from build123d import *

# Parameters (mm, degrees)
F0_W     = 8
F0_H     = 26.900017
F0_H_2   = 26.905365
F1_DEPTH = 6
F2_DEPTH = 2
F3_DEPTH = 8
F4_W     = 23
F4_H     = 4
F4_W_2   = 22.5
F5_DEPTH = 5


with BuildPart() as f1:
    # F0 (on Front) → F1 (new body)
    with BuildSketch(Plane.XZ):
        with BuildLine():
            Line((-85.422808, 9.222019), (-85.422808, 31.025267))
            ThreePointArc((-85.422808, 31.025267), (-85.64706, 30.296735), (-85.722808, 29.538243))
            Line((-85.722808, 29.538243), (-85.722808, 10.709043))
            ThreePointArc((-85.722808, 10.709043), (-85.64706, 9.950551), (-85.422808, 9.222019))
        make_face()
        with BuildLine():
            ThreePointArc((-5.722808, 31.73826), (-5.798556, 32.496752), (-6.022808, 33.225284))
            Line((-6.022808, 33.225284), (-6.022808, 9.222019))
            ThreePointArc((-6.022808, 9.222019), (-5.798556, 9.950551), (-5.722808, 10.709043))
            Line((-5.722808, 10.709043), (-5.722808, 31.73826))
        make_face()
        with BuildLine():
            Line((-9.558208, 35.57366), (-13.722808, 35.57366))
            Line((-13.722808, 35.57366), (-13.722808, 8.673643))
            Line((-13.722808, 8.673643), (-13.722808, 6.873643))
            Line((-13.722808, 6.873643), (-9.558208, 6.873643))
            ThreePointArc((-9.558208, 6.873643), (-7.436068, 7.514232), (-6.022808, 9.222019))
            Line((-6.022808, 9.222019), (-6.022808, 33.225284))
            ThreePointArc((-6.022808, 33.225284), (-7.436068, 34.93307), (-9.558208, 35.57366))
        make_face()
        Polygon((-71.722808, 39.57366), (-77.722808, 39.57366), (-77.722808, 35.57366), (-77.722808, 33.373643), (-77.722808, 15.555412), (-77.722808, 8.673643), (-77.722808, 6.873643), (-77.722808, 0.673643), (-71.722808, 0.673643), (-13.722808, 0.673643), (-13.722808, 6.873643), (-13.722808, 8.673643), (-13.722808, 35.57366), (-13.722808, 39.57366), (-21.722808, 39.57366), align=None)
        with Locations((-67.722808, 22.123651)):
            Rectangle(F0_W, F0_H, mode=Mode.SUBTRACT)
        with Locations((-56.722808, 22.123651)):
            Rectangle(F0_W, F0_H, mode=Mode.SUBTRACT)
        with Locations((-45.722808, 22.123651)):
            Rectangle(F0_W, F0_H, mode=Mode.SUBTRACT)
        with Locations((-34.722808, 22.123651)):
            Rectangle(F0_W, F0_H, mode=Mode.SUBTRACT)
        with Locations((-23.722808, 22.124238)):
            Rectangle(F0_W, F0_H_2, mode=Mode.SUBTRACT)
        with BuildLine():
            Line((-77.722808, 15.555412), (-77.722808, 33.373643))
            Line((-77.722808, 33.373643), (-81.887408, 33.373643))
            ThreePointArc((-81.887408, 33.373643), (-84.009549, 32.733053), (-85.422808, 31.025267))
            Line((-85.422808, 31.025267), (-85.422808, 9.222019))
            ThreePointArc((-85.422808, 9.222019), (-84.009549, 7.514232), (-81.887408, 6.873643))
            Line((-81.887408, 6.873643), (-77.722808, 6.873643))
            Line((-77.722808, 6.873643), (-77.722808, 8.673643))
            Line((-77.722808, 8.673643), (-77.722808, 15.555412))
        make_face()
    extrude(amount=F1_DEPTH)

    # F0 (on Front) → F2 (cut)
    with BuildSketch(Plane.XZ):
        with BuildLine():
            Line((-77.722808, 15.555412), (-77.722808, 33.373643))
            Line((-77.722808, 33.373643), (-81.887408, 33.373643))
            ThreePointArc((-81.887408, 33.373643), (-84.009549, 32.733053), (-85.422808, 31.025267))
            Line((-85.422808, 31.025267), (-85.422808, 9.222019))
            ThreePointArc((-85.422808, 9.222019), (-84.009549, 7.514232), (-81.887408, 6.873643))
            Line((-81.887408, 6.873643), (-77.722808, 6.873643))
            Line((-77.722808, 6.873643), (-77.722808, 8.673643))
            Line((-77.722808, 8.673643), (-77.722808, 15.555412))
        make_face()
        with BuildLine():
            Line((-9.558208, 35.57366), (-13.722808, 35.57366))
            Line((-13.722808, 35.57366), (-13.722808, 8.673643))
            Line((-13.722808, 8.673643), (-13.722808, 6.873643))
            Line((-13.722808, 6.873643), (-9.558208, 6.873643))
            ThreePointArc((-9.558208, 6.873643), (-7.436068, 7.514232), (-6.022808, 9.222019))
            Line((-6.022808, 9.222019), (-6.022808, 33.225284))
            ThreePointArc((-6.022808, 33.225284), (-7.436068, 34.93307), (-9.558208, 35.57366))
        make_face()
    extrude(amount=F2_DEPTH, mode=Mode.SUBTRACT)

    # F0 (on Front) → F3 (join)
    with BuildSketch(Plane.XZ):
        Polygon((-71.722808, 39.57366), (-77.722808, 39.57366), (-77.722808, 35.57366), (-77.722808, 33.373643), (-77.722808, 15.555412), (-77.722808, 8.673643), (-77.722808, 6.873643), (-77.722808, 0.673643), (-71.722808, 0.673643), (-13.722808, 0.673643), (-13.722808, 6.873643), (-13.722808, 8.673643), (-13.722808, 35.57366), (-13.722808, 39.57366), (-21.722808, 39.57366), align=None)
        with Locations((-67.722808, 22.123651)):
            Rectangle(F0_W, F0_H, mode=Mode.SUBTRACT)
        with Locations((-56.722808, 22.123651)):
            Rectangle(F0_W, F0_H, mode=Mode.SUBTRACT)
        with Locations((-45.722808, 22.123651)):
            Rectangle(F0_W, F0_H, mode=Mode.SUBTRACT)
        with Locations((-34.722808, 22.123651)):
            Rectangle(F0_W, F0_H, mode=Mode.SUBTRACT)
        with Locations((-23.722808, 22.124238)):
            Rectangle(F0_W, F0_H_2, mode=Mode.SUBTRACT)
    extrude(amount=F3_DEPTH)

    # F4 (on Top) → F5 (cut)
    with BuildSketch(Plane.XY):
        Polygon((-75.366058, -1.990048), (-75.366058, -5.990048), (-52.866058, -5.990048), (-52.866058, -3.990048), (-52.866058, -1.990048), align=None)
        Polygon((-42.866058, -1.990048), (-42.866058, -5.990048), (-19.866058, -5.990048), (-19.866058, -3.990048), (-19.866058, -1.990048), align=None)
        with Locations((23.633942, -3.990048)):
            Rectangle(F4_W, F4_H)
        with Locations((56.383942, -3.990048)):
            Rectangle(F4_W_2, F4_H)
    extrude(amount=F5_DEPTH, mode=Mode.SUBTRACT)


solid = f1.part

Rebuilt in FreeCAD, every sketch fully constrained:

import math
import FreeCAD as App
import Part
import Sketcher

V = App.Vector
Q = App.Units.Quantity


def add_polygon(sketch, points):
    """Adds a closed chain of lines whose ends are joined by coincident constraints."""
    first, n = sketch.GeometryCount, len(points)
    for a, b in zip(points, points[1:] + points[:1]):
        sketch.addGeometry(Part.LineSegment(App.Vector(*a, 0), App.Vector(*b, 0)), False)
    for i in range(n):
        sketch.addConstraint(Sketcher.Constraint("Coincident", first + i, 2, first + (i + 1) % n, 1))

doc = App.newDocument("Part")
params = doc.addObject("Spreadsheet::Sheet", "Params")
for row, (alias, value) in enumerate([
    ("sketch1_width", "64 mm"),
    ("sketch1_width2", "8 mm"),
    ("sketch1_height", "4 mm"),
    ("sketch1_height2", "6.2 mm"),
    ("pad1_length", "6 mm"),
    ("sketch2_height", "26.5 mm"),
    ("pocket1_length", "2 mm"),
    ("sketch3_width", "64 mm"),
    ("sketch3_width2", "8 mm"),
    ("pad2_length", "8 mm"),
    ("sketch4_width", "23 mm"),
    ("sketch4_height", "4 mm"),
    ("sketch4_width2", "22.5 mm"),
    ("pocket2_length", "5 mm"),
], start=1):
    params.set(f"A{row}", alias)
    params.set(f"B{row}", "=" + value)
    params.setAlias(f"B{row}", alias)

body = doc.addObject("PartDesign::Body", "Body")

# Sketch on XZ plane
sketch1 = body.newObject("Sketcher::SketchObject", "Sketch")
sketch1.AttachmentSupport = (doc.getObject("XZ_Plane"), [""])
sketch1.MapMode = "FlatFace"
sketch1.addGeometry(Part.ArcOfCircle(Part.Circle(V(-81.887408, 29.538243, 0), V(0, 0, 1), 3.8354), math.radians(157.187903), math.radians(180)), False)  # 0
sketch1.addGeometry(Part.LineSegment(V(-85.722808, 29.538243, 0), V(-85.722808, 10.709043, 0)), False)  # 1
sketch1.addGeometry(Part.ArcOfCircle(Part.Circle(V(-81.887408, 10.709043, 0), V(0, 0, 1), 3.8354), math.radians(180), math.radians(202.812097)), False)  # 2
sketch1.addGeometry(Part.ArcOfCircle(Part.Circle(V(-81.887411, 10.709039, 0), V(0, 0, 1), 3.835396), math.radians(-157.18794), math.radians(-89.999958)), False)  # 3
sketch1.addGeometry(Part.LineSegment(V(-81.887408, 6.873643, 0), V(-77.722808, 6.873643, 0)), False)  # 4
sketch1.addGeometry(Part.LineSegment(V(-77.722808, 6.873643, 0), V(-77.722808, 0.673643, 0)), False)  # 5
sketch1.addGeometry(Part.LineSegment(V(-77.722808, 0.673643, 0), V(-13.722808, 0.673643, 0)), False)  # 6
sketch1.addGeometry(Part.LineSegment(V(-13.722808, 0.673643, 0), V(-13.722808, 6.873643, 0)), False)  # 7
sketch1.addGeometry(Part.LineSegment(V(-13.722808, 6.873643, 0), V(-9.558208, 6.873643, 0)), False)  # 8
sketch1.addGeometry(Part.ArcOfCircle(Part.Circle(V(-9.558207, 10.709042, 0), V(0, 0, 1), 3.835399), math.radians(-90.000014), math.radians(-22.812087)), False)  # 9
sketch1.addGeometry(Part.ArcOfCircle(Part.Circle(V(-9.558208, 10.709043, 0), V(0, 0, 1), 3.8354), math.radians(-22.812097), math.radians(0)), False)  # 10
sketch1.addGeometry(Part.LineSegment(V(-5.722808, 10.709043, 0), V(-5.722808, 31.73826, 0)), False)  # 11
sketch1.addGeometry(Part.ArcOfCircle(Part.Circle(V(-9.558208, 31.73826, 0), V(0, 0, 1), 3.8354), math.radians(0), math.radians(22.812097)), False)  # 12
sketch1.addGeometry(Part.ArcOfCircle(Part.Circle(V(-9.55821, 31.738257, 0), V(0, 0, 1), 3.835403), math.radians(22.812129), math.radians(89.999973)), False)  # 13
sketch1.addGeometry(Part.LineSegment(V(-9.558208, 35.57366, 0), V(-13.722808, 35.57366, 0)), False)  # 14
sketch1.addGeometry(Part.LineSegment(V(-13.722808, 35.57366, 0), V(-13.722808, 39.57366, 0)), False)  # 15
sketch1.addGeometry(Part.LineSegment(V(-13.722808, 39.57366, 0), V(-77.722808, 39.57366, 0)), False)  # 16
sketch1.addGeometry(Part.LineSegment(V(-77.722808, 39.57366, 0), V(-77.722808, 33.373643, 0)), False)  # 17
sketch1.addGeometry(Part.LineSegment(V(-77.722808, 33.373643, 0), V(-81.887408, 33.373643, 0)), False)  # 18
sketch1.addGeometry(Part.ArcOfCircle(Part.Circle(V(-81.887408, 29.538243, 0), V(0, 0, 1), 3.8354), math.radians(89.999999), math.radians(157.187899)), False)  # 19
add_polygon(sketch1, [(-27.722808, 8.671556), (-27.722808, 35.57692), (-19.722808, 35.57692), (-19.722808, 8.671556)])  # lines 20-23
add_polygon(sketch1, [(-63.722808, 8.673642), (-71.722808, 8.673642), (-71.722808, 35.573659), (-63.722808, 35.573659)])  # lines 24-27
add_polygon(sketch1, [(-52.722808, 8.673642), (-60.722808, 8.673642), (-60.722808, 35.573659), (-52.722808, 35.573659)])  # lines 28-31
add_polygon(sketch1, [(-41.722808, 8.673642), (-49.722808, 8.673642), (-49.722808, 35.573659), (-41.722808, 35.573659)])  # lines 32-35
add_polygon(sketch1, [(-30.722808, 8.673642), (-38.722808, 8.673642), (-38.722808, 35.573659), (-30.722808, 35.573659)])  # lines 36-39
sketch1.addConstraint([
    Sketcher.Constraint("Tangent", 0, 2, 1, 1),
    Sketcher.Constraint("Tangent", 1, 2, 2, 1),
    Sketcher.Constraint("Tangent", 2, 2, 3, 1),
    Sketcher.Constraint("Tangent", 3, 2, 4, 1),
    Sketcher.Constraint("Coincident", 4, 2, 5, 1),
    Sketcher.Constraint("Coincident", 5, 2, 6, 1),
    Sketcher.Constraint("Coincident", 6, 2, 7, 1),
    Sketcher.Constraint("Coincident", 7, 2, 8, 1),
    Sketcher.Constraint("Tangent", 8, 2, 9, 1),
    Sketcher.Constraint("Tangent", 9, 2, 10, 1),
    Sketcher.Constraint("Tangent", 10, 2, 11, 1),
    Sketcher.Constraint("Tangent", 11, 2, 12, 1),
    Sketcher.Constraint("Tangent", 12, 2, 13, 1),
    Sketcher.Constraint("Tangent", 13, 2, 14, 1),
    Sketcher.Constraint("Coincident", 14, 2, 15, 1),
    Sketcher.Constraint("Coincident", 15, 2, 16, 1),
    Sketcher.Constraint("Coincident", 16, 2, 17, 1),
    Sketcher.Constraint("Coincident", 17, 2, 18, 1),
    Sketcher.Constraint("Tangent", 18, 2, 19, 1),
    Sketcher.Constraint("Tangent", 19, 2, 0, 1),
    Sketcher.Constraint("Vertical", 1),
    Sketcher.Constraint("Horizontal", 4),
    Sketcher.Constraint("Vertical", 5),
    Sketcher.Constraint("Horizontal", 6),
    Sketcher.Constraint("Vertical", 7),
    Sketcher.Constraint("Horizontal", 8),
    Sketcher.Constraint("Vertical", 11),
    Sketcher.Constraint("Horizontal", 14),
    Sketcher.Constraint("Vertical", 15),
    Sketcher.Constraint("Horizontal", 16),
    Sketcher.Constraint("Vertical", 17),
    Sketcher.Constraint("Horizontal", 18),
    Sketcher.Constraint("Vertical", 20),
    Sketcher.Constraint("Horizontal", 21),
    Sketcher.Constraint("Vertical", 22),
    Sketcher.Constraint("Horizontal", 23),
    Sketcher.Constraint("Horizontal", 24),
    Sketcher.Constraint("Vertical", 25),
    Sketcher.Constraint("Horizontal", 26),
    Sketcher.Constraint("Vertical", 27),
    Sketcher.Constraint("Horizontal", 28),
    Sketcher.Constraint("Vertical", 29),
    Sketcher.Constraint("Horizontal", 30),
    Sketcher.Constraint("Vertical", 31),
    Sketcher.Constraint("Horizontal", 32),
    Sketcher.Constraint("Vertical", 33),
    Sketcher.Constraint("Horizontal", 34),
    Sketcher.Constraint("Vertical", 35),
    Sketcher.Constraint("Horizontal", 36),
    Sketcher.Constraint("Vertical", 37),
    Sketcher.Constraint("Horizontal", 38),
    Sketcher.Constraint("Vertical", 39),
    Sketcher.Constraint("Equal", 0, 2),
    Sketcher.Constraint("Equal", 2, 9),
    Sketcher.Constraint("Equal", 9, 10),
    Sketcher.Constraint("Equal", 10, 12),
    Sketcher.Constraint("Equal", 12, 19),
    Sketcher.Constraint("Horizontal", 2, 3, 9, 3),
    Sketcher.Constraint("Horizontal", 4, 2, 7, 2),
    Sketcher.Constraint("Horizontal", 2, 2, 9, 2),
    Sketcher.Constraint("Horizontal", 14, 2, 25, 2),
    Sketcher.Constraint("Horizontal", 27, 2, 28, 2),
    Sketcher.Constraint("Horizontal", 26, 2, 29, 2),
    Sketcher.Constraint("Horizontal", 31, 2, 32, 2),
    Sketcher.Constraint("Horizontal", 30, 2, 33, 2),
    Sketcher.Constraint("Horizontal", 35, 2, 36, 2),
    Sketcher.Constraint("Horizontal", 34, 2, 37, 2),
    Sketcher.Constraint("Vertical", 10, 3, 13, 3),
    Sketcher.Constraint("Vertical", 9, 2, 12, 2),
    Sketcher.Constraint("Vertical", 7, 2, 14, 2),
    Sketcher.Constraint("Vertical", 5, 2, 16, 2),
    Sketcher.Constraint("Vertical", 2, 2, 19, 2),
    Sketcher.Constraint("Equal", 4, 8),
    Sketcher.Constraint("Equal", 23, 24),
    Sketcher.Constraint("Equal", 26, 28),
    Sketcher.Constraint("Equal", 30, 32),
    Sketcher.Constraint("Equal", 34, 36),
    Sketcher.Constraint("DistanceX", 6, 1, 6, 2, Q("64 mm")),
    Sketcher.Constraint("DistanceX", 21, 1, 21, 2, Q("8 mm")),
    Sketcher.Constraint("DistanceY", 15, 1, 15, 2, Q("4 mm")),
    Sketcher.Constraint("DistanceY", 5, 2, 5, 1, Q("6.2 mm")),
    Sketcher.Constraint("DistanceX", 1, 2, 4, 2, Q("8 mm")),
    Sketcher.Constraint("DistanceX", 20, 2, 14, 2, Q("14 mm")),
    Sketcher.Constraint("DistanceX", 4, 2, 24, 2, Q("6 mm")),
    Sketcher.Constraint("DistanceY", 5, 2, 24, 2, Q("7.999999 mm")),
    Sketcher.Constraint("DistanceX", 27, 2, 28, 2, Q("3 mm")),
    Sketcher.Constraint("DistanceX", 31, 2, 32, 2, Q("3 mm")),
    Sketcher.Constraint("DistanceX", 35, 2, 36, 2, Q("3 mm")),
    Sketcher.Constraint("Radius", 0, Q("3.8354 mm")),
    Sketcher.Constraint("DistanceX", 1, 2, 2, 2, Q("0.3 mm")),
    Sketcher.Constraint("DistanceY", 1, 2, 1, 1, Q("18.8292 mm")),
    Sketcher.Constraint("DistanceY", 11, 1, 11, 2, Q("21.029217 mm")),
    Sketcher.Constraint("DistanceY", 20, 1, 20, 2, Q("26.905365 mm")),
    Sketcher.Constraint("DistanceX", 3, 3, -1, 1, Q("81.887411 mm")),
    Sketcher.Constraint("DistanceY", -1, 1, 3, 3, Q("10.709039 mm")),
    Sketcher.Constraint("DistanceY", -1, 1, 20, 2, Q("35.57692 mm")),
])
sketch1.setExpression("Constraints[97]", "Params.sketch1_width")
sketch1.setExpression("Constraints[98]", "Params.sketch1_width2")
sketch1.setExpression("Constraints[99]", "Params.sketch1_height")
sketch1.setExpression("Constraints[100]", "Params.sketch1_height2")
pad1 = body.newObject("PartDesign::Pad", "Pad")
pad1.Profile = sketch1
pad1.setExpression("Length", "Params.pad1_length")

# Sketch on XZ plane
sketch2 = body.newObject("Sketcher::SketchObject", "Sketch001")
sketch2.AttachmentSupport = (doc.getObject("XZ_Plane"), [""])
sketch2.MapMode = "FlatFace"
sketch2.addGeometry([
    Part.LineSegment(V(-77.722808, 33.373643, 0), V(-81.887408, 33.373643, 0)),  # 0
    Part.ArcOfCircle(Part.Circle(V(-81.887408, 29.538243, 0), V(0, 0, 1), 3.8354), math.radians(89.999999), math.radians(157.187899)),  # 1
    Part.LineSegment(V(-85.422808, 31.025267, 0), V(-85.422808, 9.222019, 0)),  # 2
    Part.ArcOfCircle(Part.Circle(V(-81.887411, 10.709039, 0), V(0, 0, 1), 3.835396), math.radians(-157.18794), math.radians(-89.999958)),  # 3
    Part.LineSegment(V(-81.887408, 6.873643, 0), V(-77.722808, 6.873643, 0)),  # 4
    Part.LineSegment(V(-77.722808, 6.873643, 0), V(-77.722808, 33.373643, 0)),  # 5
    Part.LineSegment(V(-9.558208, 35.57366, 0), V(-13.722808, 35.57366, 0)),  # 6
    Part.LineSegment(V(-13.722808, 35.57366, 0), V(-13.722808, 6.873643, 0)),  # 7
    Part.LineSegment(V(-13.722808, 6.873643, 0), V(-9.558208, 6.873643, 0)),  # 8
    Part.ArcOfCircle(Part.Circle(V(-9.558207, 10.709042, 0), V(0, 0, 1), 3.835399), math.radians(-90.000014), math.radians(-22.812087)),  # 9
    Part.LineSegment(V(-6.022808, 9.222019, 0), V(-6.022808, 33.225284, 0)),  # 10
    Part.ArcOfCircle(Part.Circle(V(-9.55821, 31.738257, 0), V(0, 0, 1), 3.835403), math.radians(22.812129), math.radians(89.999973)),  # 11
], False)
sketch2.addConstraint([
    Sketcher.Constraint("Tangent", 0, 2, 1, 1),
    Sketcher.Constraint("Coincident", 1, 2, 2, 1),
    Sketcher.Constraint("Coincident", 2, 2, 3, 1),
    Sketcher.Constraint("Tangent", 3, 2, 4, 1),
    Sketcher.Constraint("Coincident", 4, 2, 5, 1),
    Sketcher.Constraint("Coincident", 5, 2, 0, 1),
    Sketcher.Constraint("Coincident", 6, 2, 7, 1),
    Sketcher.Constraint("Coincident", 7, 2, 8, 1),
    Sketcher.Constraint("Tangent", 8, 2, 9, 1),
    Sketcher.Constraint("Coincident", 9, 2, 10, 1),
    Sketcher.Constraint("Coincident", 10, 2, 11, 1),
    Sketcher.Constraint("Tangent", 11, 2, 6, 1),
    Sketcher.Constraint("Horizontal", 0),
    Sketcher.Constraint("Vertical", 2),
    Sketcher.Constraint("Horizontal", 4),
    Sketcher.Constraint("Vertical", 5),
    Sketcher.Constraint("Horizontal", 6),
    Sketcher.Constraint("Vertical", 7),
    Sketcher.Constraint("Horizontal", 8),
    Sketcher.Constraint("Vertical", 10),
    Sketcher.Constraint("Equal", 1, 9),
    Sketcher.Constraint("Horizontal", 4, 2, 7, 2),
    Sketcher.Constraint("Horizontal", 2, 2, 9, 2),
    Sketcher.Constraint("Vertical", 0, 2, 3, 2),
    Sketcher.Constraint("Vertical", 11, 3, 8, 2),
    Sketcher.Constraint("Equal", 4, 6),
    Sketcher.Constraint("DistanceY", 5, 1, 5, 2, Q("26.5 mm")),
    Sketcher.Constraint("DistanceX", 5, 2, 6, 2, Q("64 mm")),
    Sketcher.Constraint("Radius", 1, Q("3.8354 mm")),
    Sketcher.Constraint("DistanceX", 2, 2, 4, 2, Q("7.7 mm")),
    Sketcher.Constraint("DistanceX", 7, 2, 9, 2, Q("7.7 mm")),
    Sketcher.Constraint("DistanceX", 0, 2, 0, 1, Q("4.1646 mm")),
    Sketcher.Constraint("Radius", 11, Q("3.835403 mm")),
    Sketcher.Constraint("DistanceY", 7, 2, 7, 1, Q("28.700017 mm")),
    Sketcher.Constraint("DistanceX", 1, 3, -1, 1, Q("81.887408 mm")),
    Sketcher.Constraint("DistanceY", -1, 1, 3, 3, Q("10.709039 mm")),
])
sketch2.setExpression("Constraints[26]", "Params.sketch2_height")
pocket1 = body.newObject("PartDesign::Pocket", "Pocket")
pocket1.Profile = sketch2
pocket1.setExpression("Length", "Params.pocket1_length")
pocket1.Reversed = True

# Sketch on XZ plane
sketch3 = body.newObject("Sketcher::SketchObject", "Sketch002")
sketch3.AttachmentSupport = (doc.getObject("XZ_Plane"), [""])
sketch3.MapMode = "FlatFace"
add_polygon(sketch3, [(-77.722808, 39.57366), (-77.722808, 0.673643), (-13.722808, 0.673643), (-13.722808, 39.57366)])  # lines 0-3
add_polygon(sketch3, [(-63.722808, 8.673642), (-71.722808, 8.673642), (-71.722808, 35.573659), (-63.722808, 35.573659)])  # lines 4-7
add_polygon(sketch3, [(-52.722808, 8.673642), (-60.722808, 8.673642), (-60.722808, 35.573659), (-52.722808, 35.573659)])  # lines 8-11
add_polygon(sketch3, [(-41.722808, 8.673642), (-49.722808, 8.673642), (-49.722808, 35.573659), (-41.722808, 35.573659)])  # lines 12-15
add_polygon(sketch3, [(-30.722808, 8.673642), (-38.722808, 8.673642), (-38.722808, 35.573659), (-30.722808, 35.573659)])  # lines 16-19
add_polygon(sketch3, [(-19.722808, 8.671556), (-27.722808, 8.671556), (-27.722808, 35.57692), (-19.722808, 35.57692)])  # lines 20-23
sketch3.addConstraint([
    Sketcher.Constraint("Vertical", 0),
    Sketcher.Constraint("Horizontal", 1),
    Sketcher.Constraint("Vertical", 2),
    Sketcher.Constraint("Horizontal", 3),
    Sketcher.Constraint("Horizontal", 4),
    Sketcher.Constraint("Vertical", 5),
    Sketcher.Constraint("Horizontal", 6),
    Sketcher.Constraint("Vertical", 7),
    Sketcher.Constraint("Horizontal", 8),
    Sketcher.Constraint("Vertical", 9),
    Sketcher.Constraint("Horizontal", 10),
    Sketcher.Constraint("Vertical", 11),
    Sketcher.Constraint("Horizontal", 12),
    Sketcher.Constraint("Vertical", 13),
    Sketcher.Constraint("Horizontal", 14),
    Sketcher.Constraint("Vertical", 15),
    Sketcher.Constraint("Horizontal", 16),
    Sketcher.Constraint("Vertical", 17),
    Sketcher.Constraint("Horizontal", 18),
    Sketcher.Constraint("Vertical", 19),
    Sketcher.Constraint("Horizontal", 20),
    Sketcher.Constraint("Vertical", 21),
    Sketcher.Constraint("Horizontal", 22),
    Sketcher.Constraint("Vertical", 23),
    Sketcher.Constraint("Horizontal", 7, 2, 8, 2),
    Sketcher.Constraint("Horizontal", 6, 2, 9, 2),
    Sketcher.Constraint("Horizontal", 11, 2, 12, 2),
    Sketcher.Constraint("Horizontal", 10, 2, 13, 2),
    Sketcher.Constraint("Horizontal", 15, 2, 16, 2),
    Sketcher.Constraint("Horizontal", 14, 2, 17, 2),
    Sketcher.Constraint("Equal", 6, 8),
    Sketcher.Constraint("Equal", 10, 12),
    Sketcher.Constraint("Equal", 14, 16),
    Sketcher.Constraint("Equal", 18, 20),
    Sketcher.Constraint("DistanceX", 1, 1, 1, 2, Q("64 mm")),
    Sketcher.Constraint("DistanceX", 4, 2, 4, 1, Q("8 mm")),
    Sketcher.Constraint("DistanceX", 0, 2, 4, 2, Q("6 mm")),
    Sketcher.Constraint("DistanceY", 0, 2, 4, 2, Q("7.999999 mm")),
    Sketcher.Constraint("DistanceY", 5, 2, 3, 2, Q("4 mm")),
    Sketcher.Constraint("DistanceX", 7, 2, 8, 2, Q("3 mm")),
    Sketcher.Constraint("DistanceX", 11, 2, 12, 2, Q("3 mm")),
    Sketcher.Constraint("DistanceX", 15, 2, 16, 2, Q("3 mm")),
    Sketcher.Constraint("DistanceX", 19, 2, 20, 2, Q("3 mm")),
    Sketcher.Constraint("DistanceY", 0, 2, 0, 1, Q("38.900017 mm")),
    Sketcher.Constraint("DistanceY", 21, 1, 21, 2, Q("26.905365 mm")),
    Sketcher.Constraint("DistanceX", 0, 2, -1, 1, Q("77.722808 mm")),
    Sketcher.Constraint("DistanceY", -1, 1, 2, 2, Q("39.57366 mm")),
    Sketcher.Constraint("DistanceY", -1, 1, 21, 2, Q("35.57692 mm")),
])
sketch3.setExpression("Constraints[58]", "Params.sketch3_width")
sketch3.setExpression("Constraints[59]", "Params.sketch3_width2")
pad2 = body.newObject("PartDesign::Pad", "Pad001")
pad2.Profile = sketch3
pad2.setExpression("Length", "Params.pad2_length")

# Sketch on XY plane
sketch4 = body.newObject("Sketcher::SketchObject", "Sketch003")
sketch4.AttachmentSupport = (doc.getObject("XY_Plane"), [""])
sketch4.MapMode = "FlatFace"
add_polygon(sketch4, [(-75.366058, -1.990048), (-75.366058, -5.990048), (-52.866058, -5.990048), (-52.866058, -1.990048)])  # lines 0-3
add_polygon(sketch4, [(-42.866058, -1.990048), (-42.866058, -5.990048), (-19.866058, -5.990048), (-19.866058, -1.990048)])  # lines 4-7
add_polygon(sketch4, [(12.133942, -1.990048), (12.133942, -5.990048), (35.133942, -5.990048), (35.133942, -1.990048)])  # lines 8-11
add_polygon(sketch4, [(45.133942, -1.990048), (45.133942, -5.990048), (67.633942, -5.990048), (67.633942, -1.990048)])  # lines 12-15
sketch4.addConstraint([
    Sketcher.Constraint("Vertical", 0),
    Sketcher.Constraint("Horizontal", 1),
    Sketcher.Constraint("Vertical", 2),
    Sketcher.Constraint("Horizontal", 3),
    Sketcher.Constraint("Vertical", 4),
    Sketcher.Constraint("Horizontal", 5),
    Sketcher.Constraint("Vertical", 6),
    Sketcher.Constraint("Horizontal", 7),
    Sketcher.Constraint("Vertical", 8),
    Sketcher.Constraint("Horizontal", 9),
    Sketcher.Constraint("Vertical", 10),
    Sketcher.Constraint("Horizontal", 11),
    Sketcher.Constraint("Vertical", 12),
    Sketcher.Constraint("Horizontal", 13),
    Sketcher.Constraint("Vertical", 14),
    Sketcher.Constraint("Horizontal", 15),
    Sketcher.Constraint("Horizontal", 1, 2, 4, 2),
    Sketcher.Constraint("Horizontal", 3, 2, 6, 2),
    Sketcher.Constraint("Horizontal", 5, 2, 8, 2),
    Sketcher.Constraint("Horizontal", 7, 2, 10, 2),
    Sketcher.Constraint("Horizontal", 9, 2, 12, 2),
    Sketcher.Constraint("Horizontal", 11, 2, 14, 2),
    Sketcher.Constraint("Equal", 7, 9),
    Sketcher.Constraint("Equal", 3, 13),
    Sketcher.Constraint("DistanceX", 5, 1, 5, 2, Q("23 mm")),
    Sketcher.Constraint("DistanceY", 0, 2, 0, 1, Q("4 mm")),
    Sketcher.Constraint("DistanceX", 1, 1, 1, 2, Q("22.5 mm")),
    Sketcher.Constraint("DistanceX", 1, 2, 4, 2, Q("10 mm")),
    Sketcher.Constraint("DistanceX", 5, 2, 8, 2, Q("32 mm")),
    Sketcher.Constraint("DistanceX", 9, 2, 12, 2, Q("10 mm")),
    Sketcher.Constraint("DistanceX", 1, 2, -1, 1, Q("52.866058 mm")),
    Sketcher.Constraint("DistanceY", 0, 2, -1, 1, Q("5.990048 mm")),
])
sketch4.setExpression("Constraints[40]", "Params.sketch4_width")
sketch4.setExpression("Constraints[41]", "Params.sketch4_height")
sketch4.setExpression("Constraints[42]", "Params.sketch4_width2")
pocket2 = body.newObject("PartDesign::Pocket", "Pocket001")
pocket2.Profile = sketch4
pocket2.setExpression("Length", "Params.pocket2_length")
pocket2.Reversed = True

doc.recompute()
